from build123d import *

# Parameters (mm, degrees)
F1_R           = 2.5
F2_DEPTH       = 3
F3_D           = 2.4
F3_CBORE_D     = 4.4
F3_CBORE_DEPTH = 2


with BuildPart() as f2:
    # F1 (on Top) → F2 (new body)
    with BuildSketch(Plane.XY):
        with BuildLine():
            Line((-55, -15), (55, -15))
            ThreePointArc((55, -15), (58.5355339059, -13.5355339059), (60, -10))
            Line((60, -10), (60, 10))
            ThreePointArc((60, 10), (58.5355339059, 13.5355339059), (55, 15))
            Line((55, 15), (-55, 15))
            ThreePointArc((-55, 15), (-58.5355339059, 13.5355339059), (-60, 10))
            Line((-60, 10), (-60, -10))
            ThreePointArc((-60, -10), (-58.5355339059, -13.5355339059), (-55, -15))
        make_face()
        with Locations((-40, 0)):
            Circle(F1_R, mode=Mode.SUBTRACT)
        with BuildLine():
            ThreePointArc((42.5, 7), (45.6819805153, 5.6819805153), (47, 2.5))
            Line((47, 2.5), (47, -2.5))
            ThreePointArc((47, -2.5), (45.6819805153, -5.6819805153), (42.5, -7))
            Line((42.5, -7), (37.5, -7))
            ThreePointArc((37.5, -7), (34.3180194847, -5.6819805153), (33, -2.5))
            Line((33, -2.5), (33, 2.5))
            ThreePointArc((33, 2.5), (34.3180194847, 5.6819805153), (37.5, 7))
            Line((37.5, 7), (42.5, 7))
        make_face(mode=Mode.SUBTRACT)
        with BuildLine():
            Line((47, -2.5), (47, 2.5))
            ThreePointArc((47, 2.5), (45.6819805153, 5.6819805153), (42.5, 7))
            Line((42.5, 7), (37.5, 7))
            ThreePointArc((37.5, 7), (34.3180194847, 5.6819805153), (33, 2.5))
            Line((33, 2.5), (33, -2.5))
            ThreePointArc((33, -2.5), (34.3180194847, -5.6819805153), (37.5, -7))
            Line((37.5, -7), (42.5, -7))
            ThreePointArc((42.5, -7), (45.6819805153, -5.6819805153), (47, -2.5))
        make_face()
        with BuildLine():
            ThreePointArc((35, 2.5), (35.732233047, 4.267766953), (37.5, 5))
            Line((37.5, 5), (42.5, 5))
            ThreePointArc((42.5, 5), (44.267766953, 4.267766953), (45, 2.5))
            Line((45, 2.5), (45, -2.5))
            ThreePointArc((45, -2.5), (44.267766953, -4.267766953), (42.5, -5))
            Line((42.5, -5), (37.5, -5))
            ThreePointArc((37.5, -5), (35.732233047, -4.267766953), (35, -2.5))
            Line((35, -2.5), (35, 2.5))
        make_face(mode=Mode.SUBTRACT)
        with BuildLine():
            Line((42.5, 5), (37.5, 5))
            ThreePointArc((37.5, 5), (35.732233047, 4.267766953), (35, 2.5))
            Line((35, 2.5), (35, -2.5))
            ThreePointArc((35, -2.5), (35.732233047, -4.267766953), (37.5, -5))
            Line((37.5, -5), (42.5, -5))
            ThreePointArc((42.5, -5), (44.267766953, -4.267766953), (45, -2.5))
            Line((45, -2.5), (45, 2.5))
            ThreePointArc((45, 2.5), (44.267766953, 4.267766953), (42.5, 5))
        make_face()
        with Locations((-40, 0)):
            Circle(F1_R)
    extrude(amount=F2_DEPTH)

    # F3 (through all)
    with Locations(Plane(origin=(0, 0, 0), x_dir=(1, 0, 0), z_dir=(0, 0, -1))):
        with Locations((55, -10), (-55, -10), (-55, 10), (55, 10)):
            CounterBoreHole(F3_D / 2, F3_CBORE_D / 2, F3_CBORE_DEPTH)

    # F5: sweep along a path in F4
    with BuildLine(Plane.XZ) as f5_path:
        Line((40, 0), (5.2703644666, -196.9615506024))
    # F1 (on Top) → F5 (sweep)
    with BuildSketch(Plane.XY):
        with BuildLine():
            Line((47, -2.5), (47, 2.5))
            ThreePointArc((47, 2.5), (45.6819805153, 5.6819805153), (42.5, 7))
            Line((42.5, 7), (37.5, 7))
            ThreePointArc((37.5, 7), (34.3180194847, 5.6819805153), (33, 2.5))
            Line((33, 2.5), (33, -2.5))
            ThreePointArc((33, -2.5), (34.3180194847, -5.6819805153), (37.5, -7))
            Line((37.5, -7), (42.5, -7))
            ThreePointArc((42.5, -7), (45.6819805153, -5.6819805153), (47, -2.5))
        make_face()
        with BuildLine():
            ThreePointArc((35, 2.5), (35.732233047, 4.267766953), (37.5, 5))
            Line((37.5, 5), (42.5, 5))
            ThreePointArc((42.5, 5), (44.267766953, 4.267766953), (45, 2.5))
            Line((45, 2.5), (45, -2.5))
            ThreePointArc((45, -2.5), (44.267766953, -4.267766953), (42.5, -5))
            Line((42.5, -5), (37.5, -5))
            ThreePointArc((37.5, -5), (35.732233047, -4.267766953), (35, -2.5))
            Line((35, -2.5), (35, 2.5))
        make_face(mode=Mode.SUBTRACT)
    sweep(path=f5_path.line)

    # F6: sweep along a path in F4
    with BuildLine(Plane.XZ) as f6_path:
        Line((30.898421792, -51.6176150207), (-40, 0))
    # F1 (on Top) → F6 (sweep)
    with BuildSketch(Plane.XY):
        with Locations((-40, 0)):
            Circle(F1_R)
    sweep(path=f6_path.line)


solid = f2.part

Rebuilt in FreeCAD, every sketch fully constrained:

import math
import FreeCAD as App
import Part
import Sketcher
from FreeCAD import Vector

doc = App.newDocument("Part")
body = doc.addObject("PartDesign::Body", "Body")

# Sketch on XY plane
sketch1 = body.newObject("Sketcher::SketchObject", "Sketch")
sketch1.AttachmentSupport = (doc.getObject("XY_Plane"), [""])
sketch1.MapMode = "FlatFace"
sketch1.addGeometry(Part.LineSegment(Vector(-55, -15, 0), Vector(55, -15, 0)), False)
sketch1.addGeometry(Part.ArcOfCircle(Part.Circle(Vector(55, -10, 0), Vector(0, 0, 1), 5), math.radians(-90), math.radians(0)), False)
sketch1.addGeometry(Part.LineSegment(Vector(60, -10, 0), Vector(60, 10, 0)), False)
sketch1.addGeometry(Part.ArcOfCircle(Part.Circle(Vector(55, 10, 0), Vector(0, 0, 1), 5), math.radians(0), math.radians(90)), False)
sketch1.addGeometry(Part.LineSegment(Vector(55, 15, 0), Vector(-55, 15, 0)), False)
sketch1.addGeometry(Part.ArcOfCircle(Part.Circle(Vector(-55, 10, 0), Vector(0, 0, 1), 5), math.radians(90), math.radians(180)), False)
sketch1.addGeometry(Part.LineSegment(Vector(-60, 10, 0), Vector(-60, -10, 0)), False)
sketch1.addGeometry(Part.ArcOfCircle(Part.Circle(Vector(-55, -10, 0), Vector(0, 0, 1), 5), math.radians(180), math.radians(270)), False)
sketch1.addConstraint(Sketcher.Constraint("Tangent", 0, 2, 1, 1))
sketch1.addConstraint(Sketcher.Constraint("Tangent", 1, 2, 2, 1))
sketch1.addConstraint(Sketcher.Constraint("Tangent", 2, 2, 3, 1))
sketch1.addConstraint(Sketcher.Constraint("Tangent", 3, 2, 4, 1))
sketch1.addConstraint(Sketcher.Constraint("Tangent", 4, 2, 5, 1))
sketch1.addConstraint(Sketcher.Constraint("Tangent", 5, 2, 6, 1))
sketch1.addConstraint(Sketcher.Constraint("Tangent", 6, 2, 7, 1))
sketch1.addConstraint(Sketcher.Constraint("Tangent", 7, 2, 0, 1))
sketch1.addConstraint(Sketcher.Constraint("Horizontal", 0))
sketch1.addConstraint(Sketcher.Constraint("Vertical", 2))
sketch1.addConstraint(Sketcher.Constraint("Horizontal", 4))
sketch1.addConstraint(Sketcher.Constraint("Vertical", 6))
sketch1.addConstraint(Sketcher.Constraint("Equal", 1, 3))
sketch1.addConstraint(Sketcher.Constraint("Equal", 3, 5))
sketch1.addConstraint(Sketcher.Constraint("Equal", 5, 7))
sketch1.addConstraint(Sketcher.Constraint("Symmetric", 1, 3, 5, 3, -1, 1))
sketch1.addConstraint(Sketcher.Constraint("Radius", 1, 5.0))
sketch1.addConstraint(Sketcher.Constraint("DistanceX", 0, 1, 0, 2, 110.0))
sketch1.addConstraint(Sketcher.Constraint("DistanceY", 2, 1, 2, 2, 20.0))
pad1 = body.newObject("PartDesign::Pad", "Pad")
pad1.Profile = sketch1
pad1.Length = 3

# Sketch on XY plane
sketch2 = body.newObject("Sketcher::SketchObject", "Sketch001")
sketch2.AttachmentSupport = (doc.getObject("XY_Plane"), [""])
sketch2.MapMode = "FlatFace"
sketch2.addGeometry(Part.Circle(Vector(55, 10, 0), Vector(0, 0, 1), 1.2), False)
sketch2.addGeometry(Part.Circle(Vector(-55, 10, 0), Vector(0, 0, 1), 1.2), False)
sketch2.addGeometry(Part.Circle(Vector(-55, -10, 0), Vector(0, 0, 1), 1.2), False)
sketch2.addGeometry(Part.Circle(Vector(55, -10, 0), Vector(0, 0, 1), 1.2), False)
sketch2.addConstraint(Sketcher.Constraint("Equal", 0, 1))
sketch2.addConstraint(Sketcher.Constraint("Equal", 1, 2))
sketch2.addConstraint(Sketcher.Constraint("Equal", 2, 3))
sketch2.addConstraint(Sketcher.Constraint("Symmetric", 0, 3, 2, 3, -1, 1))
sketch2.addConstraint(Sketcher.Constraint("Symmetric", 1, 3, 3, 3, -1, 1))
sketch2.addConstraint(Sketcher.Constraint("Symmetric", 0, 3, 1, 3, -2))
sketch2.addConstraint(Sketcher.Constraint("Diameter", 0, 2.4))
sketch2.addConstraint(Sketcher.Constraint("DistanceX", -1, 1, 0, 3, 55.0))
sketch2.addConstraint(Sketcher.Constraint("DistanceY", -1, 1, 0, 3, 10.0))
doc.recompute()
hole = body.newObject("PartDesign::Hole", "Hole")
hole.Profile = sketch2
hole.ThreadType = "None"
hole.Diameter = 2.4
hole.DepthType = "ThroughAll"
hole.HoleCutType = "Counterbore"
hole.HoleCutDiameter = 4.4
hole.HoleCutDepth = 2
hole.Reversed = True

# Sketch on XY plane
sketch3 = body.newObject("Sketcher::SketchObject", "Sketch002")
sketch3.AttachmentSupport = (doc.getObject("XY_Plane"), [""])
sketch3.MapMode = "FlatFace"
sketch3.addGeometry(Part.LineSegment(Vector(47, -2.5, 0), Vector(47, 2.5, 0)), False)
sketch3.addGeometry(Part.ArcOfCircle(Part.Circle(Vector(42.5, 2.5, 0), Vector(0, 0, 1), 4.5), math.radians(0), math.radians(90)), False)
sketch3.addGeometry(Part.LineSegment(Vector(42.5, 7, 0), Vector(37.5, 7, 0)), False)
sketch3.addGeometry(Part.ArcOfCircle(Part.Circle(Vector(37.5, 2.5, 0), Vector(0, 0, 1), 4.5), math.radians(90), math.radians(180)), False)
sketch3.addGeometry(Part.LineSegment(Vector(33, 2.5, 0), Vector(33, -2.5, 0)), False)
sketch3.addGeometry(Part.ArcOfCircle(Part.Circle(Vector(37.5, -2.5, 0), Vector(0, 0, 1), 4.5), math.radians(180), math.radians(270)), False)
sketch3.addGeometry(Part.LineSegment(Vector(37.5, -7, 0), Vector(42.5, -7, 0)), False)
sketch3.addGeometry(Part.ArcOfCircle(Part.Circle(Vector(42.5, -2.5, 0), Vector(0, 0, 1), 4.5), math.radians(-90), math.radians(0)), False)
sketch3.addGeometry(Part.LineSegment(Vector(35, -2.5, 0), Vector(35, 2.5, 0)), False)
sketch3.addGeometry(Part.ArcOfCircle(Part.Circle(Vector(37.5, 2.5, 0), Vector(0, 0, 1), 2.5), math.radians(90), math.radians(180)), False)
sketch3.addGeometry(Part.LineSegment(Vector(37.5, 5, 0), Vector(42.5, 5, 0)), False)
sketch3.addGeometry(Part.ArcOfCircle(Part.Circle(Vector(42.5, 2.5, 0), Vector(0, 0, 1), 2.5), math.radians(0), math.radians(90)), False)
sketch3.addGeometry(Part.LineSegment(Vector(45, 2.5, 0), Vector(45, -2.5, 0)), False)
sketch3.addGeometry(Part.ArcOfCircle(Part.Circle(Vector(42.5, -2.5, 0), Vector(0, 0, 1), 2.5), math.radians(-90), math.radians(0)), False)
sketch3.addGeometry(Part.LineSegment(Vector(42.5, -5, 0), Vector(37.5, -5, 0)), False)
sketch3.addGeometry(Part.ArcOfCircle(Part.Circle(Vector(37.5, -2.5, 0), Vector(0, 0, 1), 2.5), math.radians(180), math.radians(270)), False)
sketch3.addConstraint(Sketcher.Constraint("Tangent", 0, 2, 1, 1))
sketch3.addConstraint(Sketcher.Constraint("Tangent", 1, 2, 2, 1))
sketch3.addConstraint(Sketcher.Constraint("Tangent", 2, 2, 3, 1))
sketch3.addConstraint(Sketcher.Constraint("Tangent", 3, 2, 4, 1))
sketch3.addConstraint(Sketcher.Constraint("Tangent", 4, 2, 5, 1))
sketch3.addConstraint(Sketcher.Constraint("Tangent", 5, 2, 6, 1))
sketch3.addConstraint(Sketcher.Constraint("Tangent", 6, 2, 7, 1))
sketch3.addConstraint(Sketcher.Constraint("Tangent", 7, 2, 0, 1))
sketch3.addConstraint(Sketcher.Constraint("Tangent", 8, 2, 9, 2))
sketch3.addConstraint(Sketcher.Constraint("Tangent", 9, 1, 10, 1))
sketch3.addConstraint(Sketcher.Constraint("Tangent", 10, 2, 11, 2))
sketch3.addConstraint(Sketcher.Constraint("Tangent", 11, 1, 12, 1))
sketch3.addConstraint(Sketcher.Constraint("Tangent", 12, 2, 13, 2))
sketch3.addConstraint(Sketcher.Constraint("Tangent", 13, 1, 14, 1))
sketch3.addConstraint(Sketcher.Constraint("Tangent", 14, 2, 15, 2))
sketch3.addConstraint(Sketcher.Constraint("Tangent", 15, 1, 8, 1))
sketch3.addConstraint(Sketcher.Constraint("Vertical", 0))
sketch3.addConstraint(Sketcher.Constraint("Horizontal", 2))
sketch3.addConstraint(Sketcher.Constraint("Vertical", 4))
sketch3.addConstraint(Sketcher.Constraint("Horizontal", 6))
sketch3.addConstraint(Sketcher.Constraint("Vertical", 8))
sketch3.addConstraint(Sketcher.Constraint("Horizontal", 10))
sketch3.addConstraint(Sketcher.Constraint("Vertical", 12))
sketch3.addConstraint(Sketcher.Constraint("Horizontal", 14))
sketch3.addConstraint(Sketcher.Constraint("Coincident", 9, 3, 3, 3))
sketch3.addConstraint(Sketcher.Constraint("Coincident", 11, 3, 1, 3))
sketch3.addConstraint(Sketcher.Constraint("Coincident", 13, 3, 7, 3))
sketch3.addConstraint(Sketcher.Constraint("Equal", 1, 3))
sketch3.addConstraint(Sketcher.Constraint("Equal", 3, 5))
sketch3.addConstraint(Sketcher.Constraint("Equal", 5, 7))
sketch3.addConstraint(Sketcher.Constraint("Equal", 13, 15))
sketch3.addConstraint(Sketcher.Constraint("Equal", 14, 0))
sketch3.addConstraint(Sketcher.Constraint("Radius", 1, 4.5))
sketch3.addConstraint(Sketcher.Constraint("Radius", 9, 2.5))
sketch3.addConstraint(Sketcher.Constraint("DistanceX", 2, 2, 2, 1, 5.0))
sketch3.addConstraint(Sketcher.Constraint("DistanceX", -1, 1, 0, 2, 47.0))
sketch3.addConstraint(Sketcher.Constraint("DistanceY", -1, 1, 1, 2, 7.0))

# Sketch on an angled plane
sketch4 = body.newObject("Sketcher::SketchObject", "Sketch003")
sketch4.Placement = App.Placement(Vector(38.793852, 0, -6.840403), App.Rotation(Vector(-0.173648178, 0, -0.984807753), Vector(0, 1, 0), Vector(0.984807753, 0, -0.173648178), "ZXY"))
sketch4.addGeometry(Part.LineSegment(Vector(-6.945927, 0, 0), Vector(193.054073, 0, 0)), False)
sketch4.addConstraint(Sketcher.Constraint("Horizontal", 0))
sketch4.addConstraint(Sketcher.Constraint("PointOnObject", 0, 1, -1))
sketch4.addConstraint(Sketcher.Constraint("DistanceX", 0, 1, 0, 2, 200.0))
sketch4.addConstraint(Sketcher.Constraint("DistanceX", 0, 1, -1, 1, 6.945927))
doc.recompute()

additivepipe = body.newObject("PartDesign::AdditivePipe", "AdditivePipe")
additivepipe.Profile = sketch3
additivepipe.Spine = (sketch4, ["Edge1"])

# Sketch on XY plane
sketch5 = body.newObject("Sketcher::SketchObject", "Sketch004")
sketch5.AttachmentSupport = (doc.getObject("XY_Plane"), [""])
sketch5.MapMode = "FlatFace"
sketch5.addGeometry(Part.Circle(Vector(-40, 0, 0), Vector(0, 0, 1), 2.5), False)
sketch5.addConstraint(Sketcher.Constraint("PointOnObject", 0, 3, -1))
sketch5.addConstraint(Sketcher.Constraint("Diameter", 0, 5.0))
sketch5.addConstraint(Sketcher.Constraint("DistanceX", 0, 3, -1, 1, 40.0))

# Sketch on an angled plane
sketch6 = body.newObject("Sketcher::SketchObject", "Sketch005")
sketch6.Placement = App.Placement(Vector(-13.857186, 0, -19.033282), App.Rotation(Vector(-0.808436973, 0, 0.588582756), Vector(0, 1, 0), Vector(-0.588582756, 0, -0.808436973), "ZXY"))
sketch6.addGeometry(Part.LineSegment(Vector(-55.360665, 0, 0), Vector(32.337479, 0, 0)), False)
sketch6.addConstraint(Sketcher.Constraint("Horizontal", 0))
sketch6.addConstraint(Sketcher.Constraint("PointOnObject", 0, 1, -1))
sketch6.addConstraint(Sketcher.Constraint("DistanceX", 0, 1, 0, 2, 87.698144))
sketch6.addConstraint(Sketcher.Constraint("DistanceX", -1, 1, 0, 2, 32.337479))
doc.recompute()

additivepipe2 = body.newObject("PartDesign::AdditivePipe", "AdditivePipe001")
additivepipe2.Profile = sketch5
additivepipe2.Spine = (sketch6, ["Edge1"])

doc.recompute()
